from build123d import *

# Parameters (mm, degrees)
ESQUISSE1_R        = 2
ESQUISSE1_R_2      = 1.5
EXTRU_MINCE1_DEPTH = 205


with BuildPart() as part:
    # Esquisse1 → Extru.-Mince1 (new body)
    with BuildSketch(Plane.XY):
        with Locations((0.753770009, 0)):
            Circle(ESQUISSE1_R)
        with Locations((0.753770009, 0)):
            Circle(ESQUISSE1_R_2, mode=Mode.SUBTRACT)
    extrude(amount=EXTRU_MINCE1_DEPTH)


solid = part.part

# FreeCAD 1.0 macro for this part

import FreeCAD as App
import Part
import Sketcher

doc = App.newDocument("Part")
body = doc.addObject("PartDesign::Body", "Body")

sketch1 = body.newObject("Sketcher::SketchObject", "Sketch")
sketch1.AttachmentSupport = (doc.getObject("XY_Plane"), [""])
sketch1.MapMode = "FlatFace"
sketch1.addGeometry([
    Part.Circle(App.Vector(0.8, 0, 0), App.Vector(0, 0, 1), 2),
    Part.Circle(App.Vector(0.8, 0, 0), App.Vector(0, 0, 1), 1.5),
], False)
sketch1.addConstraint([
    Sketcher.Constraint("Coincident", 1, 3, 0, 3),
    Sketcher.Constraint("PointOnObject", 0, 3, -1),
    Sketcher.Constraint("Diameter", 0, 4.0),
    Sketcher.Constraint("Diameter", 1, 3.0),
    Sketcher.Constraint("DistanceX", -1, 1, 0, 3, 0.75377),
])
pad1 = body.newObject("PartDesign::Pad", "Pad")
pad1.Profile = sketch1
pad1.Length = 205

doc.recompute()
